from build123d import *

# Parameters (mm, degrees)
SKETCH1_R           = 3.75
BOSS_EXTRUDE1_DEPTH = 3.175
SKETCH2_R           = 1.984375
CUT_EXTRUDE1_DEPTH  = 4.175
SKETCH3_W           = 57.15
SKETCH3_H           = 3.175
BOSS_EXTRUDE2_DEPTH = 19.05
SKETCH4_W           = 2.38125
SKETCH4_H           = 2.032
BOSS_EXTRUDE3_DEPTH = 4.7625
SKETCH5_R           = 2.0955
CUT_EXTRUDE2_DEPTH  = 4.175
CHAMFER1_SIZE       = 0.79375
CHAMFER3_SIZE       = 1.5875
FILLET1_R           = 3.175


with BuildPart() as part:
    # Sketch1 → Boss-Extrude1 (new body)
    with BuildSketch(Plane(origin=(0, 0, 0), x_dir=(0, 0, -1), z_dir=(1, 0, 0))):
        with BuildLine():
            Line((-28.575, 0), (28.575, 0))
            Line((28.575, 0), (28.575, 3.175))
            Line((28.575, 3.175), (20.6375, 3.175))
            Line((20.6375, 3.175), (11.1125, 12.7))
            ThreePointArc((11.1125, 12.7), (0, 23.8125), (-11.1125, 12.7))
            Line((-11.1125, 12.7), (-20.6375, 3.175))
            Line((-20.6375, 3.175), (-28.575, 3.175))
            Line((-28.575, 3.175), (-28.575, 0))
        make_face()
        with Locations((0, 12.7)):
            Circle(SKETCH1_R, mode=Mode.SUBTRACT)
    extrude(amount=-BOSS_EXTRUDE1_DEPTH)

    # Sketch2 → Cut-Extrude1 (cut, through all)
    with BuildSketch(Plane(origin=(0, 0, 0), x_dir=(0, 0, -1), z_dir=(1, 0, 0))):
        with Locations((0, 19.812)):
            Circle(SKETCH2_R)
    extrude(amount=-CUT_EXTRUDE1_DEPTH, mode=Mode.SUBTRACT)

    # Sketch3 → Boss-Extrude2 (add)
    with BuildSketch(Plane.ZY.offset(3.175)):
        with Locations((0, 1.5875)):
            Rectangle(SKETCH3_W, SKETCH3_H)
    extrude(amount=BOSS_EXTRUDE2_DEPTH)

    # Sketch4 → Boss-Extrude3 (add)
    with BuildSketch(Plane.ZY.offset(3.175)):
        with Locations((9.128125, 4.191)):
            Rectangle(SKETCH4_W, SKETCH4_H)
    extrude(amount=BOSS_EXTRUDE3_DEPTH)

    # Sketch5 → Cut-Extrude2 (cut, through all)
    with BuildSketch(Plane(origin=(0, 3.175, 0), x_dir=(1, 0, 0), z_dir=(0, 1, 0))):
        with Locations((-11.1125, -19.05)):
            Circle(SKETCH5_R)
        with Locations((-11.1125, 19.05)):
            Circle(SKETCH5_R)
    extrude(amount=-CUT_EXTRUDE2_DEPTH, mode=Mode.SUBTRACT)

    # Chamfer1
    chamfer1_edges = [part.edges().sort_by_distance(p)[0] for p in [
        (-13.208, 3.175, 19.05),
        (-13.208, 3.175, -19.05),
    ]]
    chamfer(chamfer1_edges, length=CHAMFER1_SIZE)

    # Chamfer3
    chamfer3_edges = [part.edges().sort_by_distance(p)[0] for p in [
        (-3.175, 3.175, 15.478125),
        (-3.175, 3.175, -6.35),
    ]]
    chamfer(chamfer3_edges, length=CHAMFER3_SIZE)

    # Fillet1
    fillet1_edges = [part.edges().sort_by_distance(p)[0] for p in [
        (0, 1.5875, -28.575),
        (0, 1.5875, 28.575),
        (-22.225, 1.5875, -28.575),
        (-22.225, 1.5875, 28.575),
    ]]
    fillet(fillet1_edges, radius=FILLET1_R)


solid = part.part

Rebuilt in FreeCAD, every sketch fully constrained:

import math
import FreeCAD as App
import Part
import Sketcher
from FreeCAD import Vector
Q = App.Units.Quantity


def edges_at(feature, points):
    """Names of the edges that pass closest to the given points."""
    edges = feature.Shape.Edges
    near = lambda p: min(range(len(edges)), key=lambda i: edges[i].distToShape(Part.Vertex(*p))[0])
    return sorted({f"Edge{near(p) + 1}" for p in points})


def add_polygon(sketch, points):
    """Adds a closed chain of lines whose ends are joined by coincident constraints."""
    first, n = sketch.GeometryCount, len(points)
    for a, b in zip(points, points[1:] + points[:1]):
        sketch.addGeometry(Part.LineSegment(App.Vector(*a, 0), App.Vector(*b, 0)), False)
    for i in range(n):
        sketch.addConstraint(Sketcher.Constraint("Coincident", first + i, 2, first + (i + 1) % n, 1))

doc = App.newDocument("Part")
body = doc.addObject("PartDesign::Body", "Body")

# Sketch on YZ plane
sketch1 = doc.addObject("Sketcher::SketchObject", "Sketch")
body.addObject(sketch1)
sketch1.AttachmentSupport = (doc.YZ_Plane, [""])
sketch1.MapMode = "FlatFace"
sketch1.addGeometry(Part.LineSegment(Vector(0, 28.575, 0), Vector(0, -28.575, 0)), False)
sketch1.addGeometry(Part.LineSegment(Vector(0, -28.575, 0), Vector(3.175, -28.575, 0)), False)
sketch1.addGeometry(Part.LineSegment(Vector(3.175, -28.575, 0), Vector(3.175, -20.6375, 0)), False)
sketch1.addGeometry(Part.LineSegment(Vector(3.175, -20.6375, 0), Vector(12.7, -11.1125, 0)), False)
sketch1.addGeometry(Part.ArcOfCircle(Part.Circle(Vector(12.7, 0, 0), Vector(0, 0, 1), 11.1125), math.radians(-90), math.radians(90)), False)
sketch1.addGeometry(Part.LineSegment(Vector(12.7, 11.1125, 0), Vector(3.175, 20.6375, 0)), False)
sketch1.addGeometry(Part.LineSegment(Vector(3.175, 20.6375, 0), Vector(3.175, 28.575, 0)), False)
sketch1.addGeometry(Part.LineSegment(Vector(3.175, 28.575, 0), Vector(0, 28.575, 0)), False)
sketch1.addGeometry(Part.Circle(Vector(12.7, 0, 0), Vector(0, 0, 1), 3.75), False)
sketch1.addConstraint(Sketcher.Constraint("Coincident", 0, 2, 1, 1))
sketch1.addConstraint(Sketcher.Constraint("Coincident", 1, 2, 2, 1))
sketch1.addConstraint(Sketcher.Constraint("Coincident", 2, 2, 3, 1))
sketch1.addConstraint(Sketcher.Constraint("Coincident", 3, 2, 4, 1))
sketch1.addConstraint(Sketcher.Constraint("Coincident", 4, 2, 5, 1))
sketch1.addConstraint(Sketcher.Constraint("Coincident", 5, 2, 6, 1))
sketch1.addConstraint(Sketcher.Constraint("Coincident", 6, 2, 7, 1))
sketch1.addConstraint(Sketcher.Constraint("Coincident", 7, 2, 0, 1))
sketch1.addConstraint(Sketcher.Constraint("Vertical", 0))
sketch1.addConstraint(Sketcher.Constraint("Horizontal", 1))
sketch1.addConstraint(Sketcher.Constraint("Vertical", 2))
sketch1.addConstraint(Sketcher.Constraint("Vertical", 6))
sketch1.addConstraint(Sketcher.Constraint("Horizontal", 7))
sketch1.addConstraint(Sketcher.Constraint("Coincident", 8, 3, 4, 3))
sketch1.addConstraint(Sketcher.Constraint("Symmetric", 0, 2, 7, 2, -1, 1))
sketch1.addConstraint(Sketcher.Constraint("Symmetric", 3, 2, 4, 2, -1))
sketch1.addConstraint(Sketcher.Constraint("Symmetric", 2, 2, 5, 2, -1))
sketch1.addConstraint(Sketcher.Constraint("Perpendicular", 3, 5))
sketch1.addConstraint(Sketcher.Constraint("Vertical", 8, 3, 3, 2))
sketch1.addConstraint(Sketcher.Constraint("Radius", 4, Q("0.4375 in")))
sketch1.addConstraint(Sketcher.Constraint("DistanceY", 0, 2, 0, 1, Q("2.25 in")))
sketch1.addConstraint(Sketcher.Constraint("DistanceX", -1, 1, 4, 3, Q("0.5 in")))
sketch1.addConstraint(Sketcher.Constraint("Diameter", 8, 7.5))
sketch1.addConstraint(Sketcher.Constraint("DistanceX", 1, 1, 1, 2, Q("0.125 in")))
pad1 = doc.addObject("PartDesign::Pad", "Pad")
body.addObject(pad1)
pad1.Profile = sketch1
pad1.Length = Q("0.125 in")
pad1.Reversed = True

# Sketch on YZ plane
sketch2 = doc.addObject("Sketcher::SketchObject", "Sketch001")
body.addObject(sketch2)
sketch2.AttachmentSupport = (doc.YZ_Plane, [""])
sketch2.MapMode = "FlatFace"
sketch2.addGeometry(Part.Circle(Vector(19.812, 0, 0), Vector(0, 0, 1), 1.984375), False)
sketch2.addConstraint(Sketcher.Constraint("PointOnObject", 0, 3, -1))
sketch2.addConstraint(Sketcher.Constraint("Diameter", 0, Q("0.15625 in")))
sketch2.addConstraint(Sketcher.Constraint("DistanceX", -1, 1, 0, 3, Q("0.78 in")))
pocket1 = doc.addObject("PartDesign::Pocket", "Pocket")
body.addObject(pocket1)
pocket1.Profile = sketch2
pocket1.Type = "ThroughAll"

# Sketch on YZ plane
sketch3 = doc.addObject("Sketcher::SketchObject", "Sketch002")
body.addObject(sketch3)
sketch3.AttachmentSupport = (doc.YZ_Plane, [""])
sketch3.MapMode = "FlatFace"
sketch3.AttachmentOffset = App.Placement(Vector(0, 0, -0.125 * 25.4), App.Rotation())
add_polygon(sketch3, [(3.175, -28.575), (0, -28.575), (0, 28.575), (3.175, 28.575)])  # lines 0-3
sketch3.addConstraint(Sketcher.Constraint("Horizontal", 0))
sketch3.addConstraint(Sketcher.Constraint("Vertical", 1))
sketch3.addConstraint(Sketcher.Constraint("Horizontal", 2))
sketch3.addConstraint(Sketcher.Constraint("Vertical", 3))
sketch3.addConstraint(Sketcher.Constraint("Symmetric", 0, 2, 1, 2, -1, 1))
sketch3.addConstraint(Sketcher.Constraint("DistanceY", 1, 1, 1, 2, Q("2.25 in")))
sketch3.addConstraint(Sketcher.Constraint("DistanceX", 0, 2, 0, 1, Q("0.125 in")))
pad2 = doc.addObject("PartDesign::Pad", "Pad001")
body.addObject(pad2)
pad2.Profile = sketch3
pad2.Length = Q("0.75 in")
pad2.Reversed = True

# Sketch on YZ plane
sketch4 = doc.addObject("Sketcher::SketchObject", "Sketch003")
body.addObject(sketch4)
sketch4.AttachmentSupport = (doc.YZ_Plane, [""])
sketch4.MapMode = "FlatFace"
sketch4.AttachmentOffset = App.Placement(Vector(0, 0, -0.125 * 25.4), App.Rotation())
add_polygon(sketch4, [(5.207, 7.9375), (3.175, 7.9375), (3.175, 10.31875), (5.207, 10.31875)])  # lines 0-3
sketch4.addConstraint(Sketcher.Constraint("Horizontal", 0))
sketch4.addConstraint(Sketcher.Constraint("Vertical", 1))
sketch4.addConstraint(Sketcher.Constraint("Horizontal", 2))
sketch4.addConstraint(Sketcher.Constraint("Vertical", 3))
sketch4.addConstraint(Sketcher.Constraint("DistanceX", 0, 2, 0, 1, Q("0.08 in")))
sketch4.addConstraint(Sketcher.Constraint("DistanceY", 1, 1, 1, 2, Q("0.09375 in")))
sketch4.addConstraint(Sketcher.Constraint("DistanceX", -1, 1, 0, 2, Q("0.125 in")))
sketch4.addConstraint(Sketcher.Constraint("DistanceY", -1, 1, 0, 2, Q("0.3125 in")))
pad3 = doc.addObject("PartDesign::Pad", "Pad002")
body.addObject(pad3)
pad3.Profile = sketch4
pad3.Length = Q("0.1875 in")
pad3.Reversed = True

# Sketch on XZ plane
sketch5 = doc.addObject("Sketcher::SketchObject", "Sketch004")
body.addObject(sketch5)
sketch5.AttachmentSupport = (doc.XZ_Plane, [""])
sketch5.MapMode = "FlatFace"
sketch5.AttachmentOffset = App.Placement(Vector(0, 0, -0.125 * 25.4), App.Rotation())
sketch5.addGeometry(Part.Circle(Vector(-11.1125, 19.05, 0), Vector(0, 0, 1), 2.0955), False)
sketch5.addGeometry(Part.Circle(Vector(-11.1125, -19.05, 0), Vector(0, 0, 1), 2.0955), False)
sketch5.addConstraint(Sketcher.Constraint("Equal", 0, 1))
sketch5.addConstraint(Sketcher.Constraint("Symmetric", 0, 3, 1, 3, -1))
sketch5.addConstraint(Sketcher.Constraint("Diameter", 0, Q("0.165 in")))
sketch5.addConstraint(Sketcher.Constraint("DistanceY", 1, 3, 0, 3, Q("1.5 in")))
sketch5.addConstraint(Sketcher.Constraint("DistanceX", 0, 3, -1, 1, Q("0.4375 in")))
pocket2 = doc.addObject("PartDesign::Pocket", "Pocket001")
body.addObject(pocket2)
pocket2.Profile = sketch5
pocket2.Type = "ThroughAll"
pocket2.Reversed = True
doc.recompute()

chamfer = doc.addObject("PartDesign::Chamfer", "Chamfer")
body.addObject(chamfer)
chamfer.Base = (pocket2, edges_at(pocket2, [(-13.208, 3.175, 19.05), (-13.208, 3.175, -19.05)]))
chamfer.Size = Q("0.03125 in")
doc.recompute()

chamfer2 = doc.addObject("PartDesign::Chamfer", "Chamfer001")
body.addObject(chamfer2)
chamfer2.Base = (chamfer, edges_at(chamfer, [(-3.175, 3.175, 15.478), (-3.175, 3.175, -6.35)]))
chamfer2.Size = Q("0.0625 in")
doc.recompute()

fillet = doc.addObject("PartDesign::Fillet", "Fillet")
body.addObject(fillet)
fillet.Base = (chamfer2, edges_at(chamfer2, [
    (0, 1.587, -28.575),
    (0, 1.587, 28.575),
    (-22.225, 1.587, -28.575),
    (-22.225, 1.587, 28.575),
]))
fillet.Radius = Q("0.125 in")

doc.recompute()
